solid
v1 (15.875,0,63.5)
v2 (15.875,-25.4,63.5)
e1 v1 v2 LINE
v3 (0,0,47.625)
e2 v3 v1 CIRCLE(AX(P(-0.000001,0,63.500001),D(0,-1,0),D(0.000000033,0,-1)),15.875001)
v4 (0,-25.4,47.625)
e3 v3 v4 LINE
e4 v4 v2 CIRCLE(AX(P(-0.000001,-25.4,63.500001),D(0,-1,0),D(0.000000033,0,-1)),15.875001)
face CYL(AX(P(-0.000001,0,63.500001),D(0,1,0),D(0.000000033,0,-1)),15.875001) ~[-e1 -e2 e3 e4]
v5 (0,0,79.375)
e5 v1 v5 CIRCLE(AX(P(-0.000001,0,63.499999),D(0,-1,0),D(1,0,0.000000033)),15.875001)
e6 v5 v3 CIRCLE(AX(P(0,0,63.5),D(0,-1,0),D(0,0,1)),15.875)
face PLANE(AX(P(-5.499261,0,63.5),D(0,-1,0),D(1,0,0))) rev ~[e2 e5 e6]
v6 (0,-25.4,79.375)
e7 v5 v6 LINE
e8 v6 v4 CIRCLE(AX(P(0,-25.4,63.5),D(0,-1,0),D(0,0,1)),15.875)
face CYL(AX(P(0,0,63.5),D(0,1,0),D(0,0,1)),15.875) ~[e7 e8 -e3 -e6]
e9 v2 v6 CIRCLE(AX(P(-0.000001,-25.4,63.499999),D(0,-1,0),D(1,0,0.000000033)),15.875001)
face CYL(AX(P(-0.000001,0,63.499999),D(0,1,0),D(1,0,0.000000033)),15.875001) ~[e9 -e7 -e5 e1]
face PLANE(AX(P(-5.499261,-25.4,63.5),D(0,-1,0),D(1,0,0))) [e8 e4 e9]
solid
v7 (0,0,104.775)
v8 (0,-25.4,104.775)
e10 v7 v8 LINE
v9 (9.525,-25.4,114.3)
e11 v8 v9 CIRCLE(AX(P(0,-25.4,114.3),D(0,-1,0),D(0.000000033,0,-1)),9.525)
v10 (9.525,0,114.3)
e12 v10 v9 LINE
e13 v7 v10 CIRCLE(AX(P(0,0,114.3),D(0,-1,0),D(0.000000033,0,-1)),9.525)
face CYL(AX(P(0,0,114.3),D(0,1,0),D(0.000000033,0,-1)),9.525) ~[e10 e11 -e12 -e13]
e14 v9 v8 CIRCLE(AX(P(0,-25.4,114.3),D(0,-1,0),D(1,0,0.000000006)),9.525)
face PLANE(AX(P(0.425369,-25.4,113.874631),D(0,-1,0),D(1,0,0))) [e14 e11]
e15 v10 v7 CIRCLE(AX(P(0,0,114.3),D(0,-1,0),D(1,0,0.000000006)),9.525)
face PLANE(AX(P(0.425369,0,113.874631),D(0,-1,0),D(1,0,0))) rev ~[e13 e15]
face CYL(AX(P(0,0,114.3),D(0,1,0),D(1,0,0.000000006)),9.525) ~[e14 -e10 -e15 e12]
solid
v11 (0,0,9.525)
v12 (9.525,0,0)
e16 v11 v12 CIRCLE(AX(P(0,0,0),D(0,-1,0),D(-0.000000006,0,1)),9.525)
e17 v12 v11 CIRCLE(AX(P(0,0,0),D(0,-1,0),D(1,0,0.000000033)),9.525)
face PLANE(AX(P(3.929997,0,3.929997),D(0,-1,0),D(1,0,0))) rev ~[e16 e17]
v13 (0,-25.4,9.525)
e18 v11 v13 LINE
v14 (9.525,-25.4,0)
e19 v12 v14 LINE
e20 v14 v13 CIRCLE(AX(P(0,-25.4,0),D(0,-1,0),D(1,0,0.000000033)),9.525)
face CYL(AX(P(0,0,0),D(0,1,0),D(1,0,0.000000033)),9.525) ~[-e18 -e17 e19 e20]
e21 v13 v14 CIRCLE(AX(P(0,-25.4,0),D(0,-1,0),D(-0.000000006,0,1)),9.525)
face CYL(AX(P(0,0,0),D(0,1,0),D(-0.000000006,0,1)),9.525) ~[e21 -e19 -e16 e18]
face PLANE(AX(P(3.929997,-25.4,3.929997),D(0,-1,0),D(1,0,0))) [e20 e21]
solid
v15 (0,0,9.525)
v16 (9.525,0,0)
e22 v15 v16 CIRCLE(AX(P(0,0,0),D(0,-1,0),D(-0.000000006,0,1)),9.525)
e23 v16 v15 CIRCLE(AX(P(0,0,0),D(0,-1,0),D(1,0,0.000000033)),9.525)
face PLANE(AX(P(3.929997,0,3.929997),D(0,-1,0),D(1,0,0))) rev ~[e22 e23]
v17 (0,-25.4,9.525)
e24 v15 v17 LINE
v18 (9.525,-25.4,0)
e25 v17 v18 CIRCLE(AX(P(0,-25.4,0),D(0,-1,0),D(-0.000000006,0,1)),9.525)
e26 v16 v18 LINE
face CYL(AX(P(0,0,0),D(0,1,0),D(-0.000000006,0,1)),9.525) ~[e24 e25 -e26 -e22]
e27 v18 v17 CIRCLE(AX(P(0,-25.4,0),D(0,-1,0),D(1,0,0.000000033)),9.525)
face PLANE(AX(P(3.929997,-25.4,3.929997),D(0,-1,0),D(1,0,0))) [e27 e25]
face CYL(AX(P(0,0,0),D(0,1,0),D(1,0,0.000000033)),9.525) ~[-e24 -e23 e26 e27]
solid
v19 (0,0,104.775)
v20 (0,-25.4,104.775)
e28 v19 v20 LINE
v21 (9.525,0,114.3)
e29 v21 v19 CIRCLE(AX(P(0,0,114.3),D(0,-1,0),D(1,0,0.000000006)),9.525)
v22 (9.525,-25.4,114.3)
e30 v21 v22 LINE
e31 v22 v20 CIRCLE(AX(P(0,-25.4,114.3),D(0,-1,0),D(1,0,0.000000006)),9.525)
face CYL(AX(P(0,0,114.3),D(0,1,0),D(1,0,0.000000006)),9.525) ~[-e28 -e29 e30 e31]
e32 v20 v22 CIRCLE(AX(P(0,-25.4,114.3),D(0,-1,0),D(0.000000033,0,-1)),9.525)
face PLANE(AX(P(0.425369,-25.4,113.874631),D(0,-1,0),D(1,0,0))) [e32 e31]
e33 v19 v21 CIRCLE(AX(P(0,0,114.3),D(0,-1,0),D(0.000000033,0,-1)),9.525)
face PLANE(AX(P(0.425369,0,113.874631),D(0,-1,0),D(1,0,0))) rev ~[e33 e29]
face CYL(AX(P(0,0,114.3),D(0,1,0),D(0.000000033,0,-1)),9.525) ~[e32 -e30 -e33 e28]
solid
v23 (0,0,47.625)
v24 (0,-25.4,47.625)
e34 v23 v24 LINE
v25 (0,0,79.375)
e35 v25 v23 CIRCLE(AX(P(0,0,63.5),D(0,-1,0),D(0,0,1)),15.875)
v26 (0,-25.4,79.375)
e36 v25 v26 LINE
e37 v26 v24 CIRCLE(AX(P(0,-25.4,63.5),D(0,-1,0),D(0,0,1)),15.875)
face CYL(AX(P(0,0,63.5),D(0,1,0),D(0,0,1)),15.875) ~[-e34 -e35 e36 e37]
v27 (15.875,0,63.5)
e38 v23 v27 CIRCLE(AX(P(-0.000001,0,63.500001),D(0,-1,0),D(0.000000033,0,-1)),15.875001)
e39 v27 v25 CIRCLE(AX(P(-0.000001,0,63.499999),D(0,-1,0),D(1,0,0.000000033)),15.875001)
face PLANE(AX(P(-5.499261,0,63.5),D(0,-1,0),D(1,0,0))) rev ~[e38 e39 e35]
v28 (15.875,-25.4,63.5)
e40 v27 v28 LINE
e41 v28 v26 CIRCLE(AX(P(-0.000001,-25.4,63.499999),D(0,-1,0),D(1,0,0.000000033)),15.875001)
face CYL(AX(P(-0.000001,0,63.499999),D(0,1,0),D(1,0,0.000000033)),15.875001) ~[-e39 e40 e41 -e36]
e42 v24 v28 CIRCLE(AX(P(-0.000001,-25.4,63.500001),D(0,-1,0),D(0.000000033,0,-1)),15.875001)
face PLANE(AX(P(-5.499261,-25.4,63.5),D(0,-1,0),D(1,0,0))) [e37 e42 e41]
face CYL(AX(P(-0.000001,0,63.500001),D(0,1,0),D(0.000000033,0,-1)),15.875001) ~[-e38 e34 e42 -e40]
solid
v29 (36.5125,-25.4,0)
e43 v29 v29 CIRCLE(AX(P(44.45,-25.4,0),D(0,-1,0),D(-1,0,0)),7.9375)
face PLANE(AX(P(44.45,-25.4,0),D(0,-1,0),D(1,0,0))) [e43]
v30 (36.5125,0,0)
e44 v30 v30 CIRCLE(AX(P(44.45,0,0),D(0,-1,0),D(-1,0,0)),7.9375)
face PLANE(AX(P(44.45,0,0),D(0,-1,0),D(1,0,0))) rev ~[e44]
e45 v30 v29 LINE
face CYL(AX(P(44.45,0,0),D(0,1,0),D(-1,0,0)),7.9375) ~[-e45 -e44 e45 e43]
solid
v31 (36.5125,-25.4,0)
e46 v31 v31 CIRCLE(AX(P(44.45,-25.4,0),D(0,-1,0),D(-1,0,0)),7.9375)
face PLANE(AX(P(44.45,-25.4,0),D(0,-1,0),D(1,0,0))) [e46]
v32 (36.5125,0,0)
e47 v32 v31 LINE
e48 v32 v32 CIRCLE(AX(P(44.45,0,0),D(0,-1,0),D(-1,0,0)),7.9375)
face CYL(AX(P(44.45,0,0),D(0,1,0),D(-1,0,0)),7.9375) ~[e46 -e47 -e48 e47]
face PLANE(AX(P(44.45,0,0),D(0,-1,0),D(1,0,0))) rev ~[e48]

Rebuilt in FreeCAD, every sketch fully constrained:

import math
import FreeCAD as App
import Part
import Sketcher

V = App.Vector
Q = App.Units.Quantity

doc = App.newDocument("Part")
body = doc.addObject("PartDesign::Body", "Body")
body.AllowCompound = True

# Sketch on XZ plane
sketch1 = body.newObject("Sketcher::SketchObject", "Sketch")
sketch1.AttachmentSupport = (doc.getObject("XZ_Plane"), [""])
sketch1.MapMode = "FlatFace"
sketch1.addGeometry([
    Part.ArcOfCircle(Part.Circle(V(0, 114, 0), V(0, 0, 1), 10), math.radians(0), math.radians(270)),  # 0
    Part.ArcOfCircle(Part.Circle(V(0, 114, 0), V(0, 0, 1), 10), math.radians(-90), math.radians(0)),  # 1
    Part.ArcOfCircle(Part.Circle(V(0, 64, 0), V(0, 0, 1), 16), math.radians(90), math.radians(270)),  # 2
    Part.ArcOfCircle(Part.Circle(V(0, 64, 0), V(0, 0, 1), 16), math.radians(-90), math.radians(0)),  # 3
    Part.ArcOfCircle(Part.Circle(V(0, 63, 0), V(0, 0, 1), 16), math.radians(0), math.radians(90)),  # 4
    Part.Circle(V(44, 0, 0), V(0, 0, 1), 8),  # 5
    Part.ArcOfCircle(Part.Circle(V(0, 0, 0), V(0, 0, 1), 10), math.radians(0), math.radians(90)),  # 6
    Part.ArcOfCircle(Part.Circle(V(0, 0, 0), V(0, 0, 1), 10), math.radians(90), math.radians(360)),  # 7
], False)
sketch1.addConstraint([
    Sketcher.Constraint("Tangent", 0, 1, 1, 2),
    Sketcher.Constraint("Coincident", 1, 1, 0, 2),
    Sketcher.Constraint("Tangent", 2, 2, 3, 1),
    Sketcher.Constraint("Tangent", 3, 2, 4, 1),
    Sketcher.Constraint("Tangent", 4, 2, 2, 1),
    Sketcher.Constraint("Tangent", 6, 1, 7, 2),
    Sketcher.Constraint("Coincident", 7, 1, 6, 2),
    Sketcher.Constraint("Coincident", 6, 3, -1, 1),
    Sketcher.Constraint("Equal", 1, 6),
    Sketcher.Constraint("PointOnObject", 0, 3, -2),
    Sketcher.Constraint("PointOnObject", 2, 3, -2),
    Sketcher.Constraint("PointOnObject", 5, 3, -1),
    Sketcher.Constraint("PointOnObject", 1, 1, -2),
    Sketcher.Constraint("PointOnObject", 2, 2, -2),
    Sketcher.Constraint("PointOnObject", 4, 2, -2),
    Sketcher.Constraint("PointOnObject", 6, 1, -1),
    Sketcher.Constraint("PointOnObject", 7, 1, -2),
    Sketcher.Constraint("Horizontal", 1, 3, 0, 1),
    Sketcher.Constraint("Horizontal", 4, 3, 3, 2),
    Sketcher.Constraint("Diameter", 5, Q("0.625 in")),
    Sketcher.Constraint("Radius", 0, Q("0.375 in")),
    Sketcher.Constraint("Radius", 2, Q("0.625 in")),
    Sketcher.Constraint("DistanceY", 2, 3, 0, 3, Q("2 in")),
    Sketcher.Constraint("DistanceY", -1, 1, 0, 3, Q("4.5 in")),
    Sketcher.Constraint("DistanceX", -1, 1, 5, 3, Q("1.75 in")),
])
pad1 = body.newObject("PartDesign::Pad", "Pad")
pad1.Profile = sketch1
pad1.Length = Q("1 in")
body2 = doc.addObject("PartDesign::Body", "Body001")
body2.AllowCompound = True

# Sketch on XZ plane
sketch2 = body2.newObject("Sketcher::SketchObject", "Sketch001")
sketch2.AttachmentSupport = (doc.getObject("XZ_Plane001"), [""])
sketch2.MapMode = "FlatFace"
sketch2.addGeometry([
    Part.ArcOfCircle(Part.Circle(V(0, 114, 0), V(0, 0, 1), 10), math.radians(0), math.radians(270)),  # 0
    Part.ArcOfCircle(Part.Circle(V(0, 114, 0), V(0, 0, 1), 10), math.radians(-90), math.radians(0)),  # 1
    Part.ArcOfCircle(Part.Circle(V(0, 64, 0), V(0, 0, 1), 16), math.radians(90), math.radians(270)),  # 2
    Part.ArcOfCircle(Part.Circle(V(0, 64, 0), V(0, 0, 1), 16), math.radians(-90), math.radians(0)),  # 3
    Part.ArcOfCircle(Part.Circle(V(0, 63, 0), V(0, 0, 1), 16), math.radians(0), math.radians(90)),  # 4
    Part.Circle(V(44, 0, 0), V(0, 0, 1), 8),  # 5
    Part.ArcOfCircle(Part.Circle(V(0, 0, 0), V(0, 0, 1), 10), math.radians(0), math.radians(90)),  # 6
    Part.ArcOfCircle(Part.Circle(V(0, 0, 0), V(0, 0, 1), 10), math.radians(90), math.radians(360)),  # 7
], False)
sketch2.addConstraint([
    Sketcher.Constraint("Tangent", 0, 1, 1, 2),
    Sketcher.Constraint("Coincident", 1, 1, 0, 2),
    Sketcher.Constraint("Tangent", 2, 2, 3, 1),
    Sketcher.Constraint("Tangent", 3, 2, 4, 1),
    Sketcher.Constraint("Tangent", 4, 2, 2, 1),
    Sketcher.Constraint("Tangent", 6, 1, 7, 2),
    Sketcher.Constraint("Coincident", 7, 1, 6, 2),
    Sketcher.Constraint("Coincident", 6, 3, -1, 1),
    Sketcher.Constraint("Equal", 1, 6),
    Sketcher.Constraint("PointOnObject", 0, 3, -2),
    Sketcher.Constraint("PointOnObject", 2, 3, -2),
    Sketcher.Constraint("PointOnObject", 5, 3, -1),
    Sketcher.Constraint("PointOnObject", 1, 1, -2),
    Sketcher.Constraint("PointOnObject", 2, 2, -2),
    Sketcher.Constraint("PointOnObject", 4, 2, -2),
    Sketcher.Constraint("PointOnObject", 6, 1, -1),
    Sketcher.Constraint("PointOnObject", 7, 1, -2),
    Sketcher.Constraint("Horizontal", 1, 3, 0, 1),
    Sketcher.Constraint("Horizontal", 4, 3, 3, 2),
    Sketcher.Constraint("Diameter", 5, Q("0.625 in")),
    Sketcher.Constraint("Radius", 0, Q("0.375 in")),
    Sketcher.Constraint("Radius", 2, Q("0.625 in")),
    Sketcher.Constraint("DistanceY", 2, 3, 0, 3, Q("2 in")),
    Sketcher.Constraint("DistanceY", -1, 1, 0, 3, Q("4.5 in")),
    Sketcher.Constraint("DistanceX", -1, 1, 5, 3, Q("1.75 in")),
])
pad2 = body2.newObject("PartDesign::Pad", "Pad001")
pad2.Profile = sketch2
pad2.Length = Q("1 in")

doc.recompute()
